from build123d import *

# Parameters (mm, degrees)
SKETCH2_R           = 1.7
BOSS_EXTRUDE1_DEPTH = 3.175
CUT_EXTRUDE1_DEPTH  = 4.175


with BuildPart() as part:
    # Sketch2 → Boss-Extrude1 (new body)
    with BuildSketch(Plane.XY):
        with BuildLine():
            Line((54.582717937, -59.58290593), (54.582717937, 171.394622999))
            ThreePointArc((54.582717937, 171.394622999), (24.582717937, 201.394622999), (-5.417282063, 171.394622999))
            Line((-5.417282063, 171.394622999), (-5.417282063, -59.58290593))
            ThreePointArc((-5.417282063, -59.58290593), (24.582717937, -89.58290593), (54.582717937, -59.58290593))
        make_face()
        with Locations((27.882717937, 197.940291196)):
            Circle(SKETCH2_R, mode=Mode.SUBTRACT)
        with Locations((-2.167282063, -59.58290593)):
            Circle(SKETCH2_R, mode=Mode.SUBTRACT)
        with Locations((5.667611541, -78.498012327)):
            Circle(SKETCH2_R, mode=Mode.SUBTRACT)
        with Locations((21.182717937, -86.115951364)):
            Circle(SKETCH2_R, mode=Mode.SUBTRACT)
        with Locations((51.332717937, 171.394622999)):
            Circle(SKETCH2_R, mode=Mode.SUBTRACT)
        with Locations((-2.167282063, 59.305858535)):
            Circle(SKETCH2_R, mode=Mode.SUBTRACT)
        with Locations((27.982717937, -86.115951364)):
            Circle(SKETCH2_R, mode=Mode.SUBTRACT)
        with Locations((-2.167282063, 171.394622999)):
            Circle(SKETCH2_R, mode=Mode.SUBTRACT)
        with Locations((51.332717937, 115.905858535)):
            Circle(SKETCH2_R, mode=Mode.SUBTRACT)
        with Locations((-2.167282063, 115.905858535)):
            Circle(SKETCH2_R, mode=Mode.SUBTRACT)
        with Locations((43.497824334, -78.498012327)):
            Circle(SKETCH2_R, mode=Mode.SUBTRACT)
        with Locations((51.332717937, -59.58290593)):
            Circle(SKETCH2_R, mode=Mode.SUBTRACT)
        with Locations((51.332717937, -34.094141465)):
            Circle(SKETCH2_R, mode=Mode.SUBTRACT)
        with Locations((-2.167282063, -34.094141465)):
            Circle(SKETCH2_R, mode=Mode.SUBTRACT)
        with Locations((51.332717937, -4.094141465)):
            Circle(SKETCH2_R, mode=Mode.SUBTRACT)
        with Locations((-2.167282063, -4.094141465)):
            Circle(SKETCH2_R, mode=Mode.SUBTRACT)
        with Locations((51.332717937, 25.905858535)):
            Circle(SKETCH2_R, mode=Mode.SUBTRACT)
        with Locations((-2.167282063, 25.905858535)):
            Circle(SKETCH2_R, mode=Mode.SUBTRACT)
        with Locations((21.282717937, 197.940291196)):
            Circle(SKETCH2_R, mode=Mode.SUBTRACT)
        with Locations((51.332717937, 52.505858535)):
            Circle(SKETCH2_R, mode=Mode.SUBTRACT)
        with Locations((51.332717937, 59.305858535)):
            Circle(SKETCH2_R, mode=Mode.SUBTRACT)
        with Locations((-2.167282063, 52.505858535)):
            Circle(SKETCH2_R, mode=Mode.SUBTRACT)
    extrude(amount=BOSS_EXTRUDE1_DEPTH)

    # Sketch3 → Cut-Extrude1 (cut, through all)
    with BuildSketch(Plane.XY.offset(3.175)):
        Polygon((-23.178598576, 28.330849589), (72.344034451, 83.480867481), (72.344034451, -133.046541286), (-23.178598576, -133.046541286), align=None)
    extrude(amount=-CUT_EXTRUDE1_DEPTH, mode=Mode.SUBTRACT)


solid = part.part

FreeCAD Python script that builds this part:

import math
import FreeCAD as App
import Part
import Sketcher
from FreeCAD import Vector
Q = App.Units.Quantity

doc = App.newDocument("Part")
body = doc.addObject("PartDesign::Body", "Body")

sketch1 = body.newObject("Sketcher::SketchObject", "Sketch")
sketch1.AttachmentSupport = (doc.getObject("XY_Plane"), [""])
sketch1.MapMode = "FlatFace"
sketch1.addGeometry([
    Part.LineSegment(Vector(54.6, -59.6, 0), Vector(54.6, 171.4, 0)),
    Part.ArcOfCircle(Part.Circle(Vector(24.6, 171.4, 0), Vector(0, 0, 1), 30), math.radians(0), math.radians(180)),
    Part.LineSegment(Vector(-5.4, 171.4, 0), Vector(-5.4, -59.6, 0)),
    Part.ArcOfCircle(Part.Circle(Vector(24.6, -59.6, 0), Vector(0, 0, 1), 30), math.radians(180), math.radians(360)),
    Part.Circle(Vector(-2.2, -59.6, 0), Vector(0, 0, 1), 1.7),
    Part.Circle(Vector(5.7, -78.5, 0), Vector(0, 0, 1), 1.7),
    Part.Circle(Vector(-2.2, -34.1, 0), Vector(0, 0, 1), 1.7),
    Part.Circle(Vector(21.2, -86.1, 0), Vector(0, 0, 1), 1.7),
    Part.Circle(Vector(-2.2, -4.1, 0), Vector(0, 0, 1), 1.7),
    Part.Circle(Vector(-2.2, 25.9, 0), Vector(0, 0, 1), 1.7),
    Part.Circle(Vector(-2.2, 52.5, 0), Vector(0, 0, 1), 1.7),
    Part.Circle(Vector(28, -86.1, 0), Vector(0, 0, 1), 1.7),
    Part.Circle(Vector(43.5, -78.5, 0), Vector(0, 0, 1), 1.7),
    Part.Circle(Vector(51.3, -59.6, 0), Vector(0, 0, 1), 1.7),
    Part.Circle(Vector(51.3, -34.1, 0), Vector(0, 0, 1), 1.7),
    Part.Circle(Vector(51.3, -4.1, 0), Vector(0, 0, 1), 1.7),
    Part.Circle(Vector(51.3, 25.9, 0), Vector(0, 0, 1), 1.7),
    Part.Circle(Vector(51.3, 52.5, 0), Vector(0, 0, 1), 1.7),
    Part.Circle(Vector(-2.2, 59.3, 0), Vector(0, 0, 1), 1.7),
    Part.Circle(Vector(-2.2, 115.9, 0), Vector(0, 0, 1), 1.7),
    Part.Circle(Vector(-2.2, 171.4, 0), Vector(0, 0, 1), 1.7),
    Part.Circle(Vector(21.3, 197.9, 0), Vector(0, 0, 1), 1.7),
    Part.Circle(Vector(51.3, 59.3, 0), Vector(0, 0, 1), 1.7),
    Part.Circle(Vector(51.3, 115.9, 0), Vector(0, 0, 1), 1.7),
    Part.Circle(Vector(27.9, 197.9, 0), Vector(0, 0, 1), 1.7),
    Part.Circle(Vector(51.3, 171.4, 0), Vector(0, 0, 1), 1.7),
], False)
sketch1.addConstraint([
    Sketcher.Constraint("Tangent", 0, 2, 1, 1),
    Sketcher.Constraint("Tangent", 1, 2, 2, 1),
    Sketcher.Constraint("Tangent", 2, 2, 3, 1),
    Sketcher.Constraint("Tangent", 3, 2, 0, 1),
    Sketcher.Constraint("Vertical", 0),
    Sketcher.Constraint("Vertical", 2),
    Sketcher.Constraint("Equal", 4, 5),
    Sketcher.Constraint("Equal", 5, 6),
    Sketcher.Constraint("Equal", 6, 7),
    Sketcher.Constraint("Equal", 7, 8),
    Sketcher.Constraint("Equal", 8, 9),
    Sketcher.Constraint("Equal", 9, 10),
    Sketcher.Constraint("Equal", 10, 11),
    Sketcher.Constraint("Equal", 11, 12),
    Sketcher.Constraint("Equal", 12, 13),
    Sketcher.Constraint("Equal", 13, 14),
    Sketcher.Constraint("Equal", 14, 15),
    Sketcher.Constraint("Equal", 15, 16),
    Sketcher.Constraint("Equal", 16, 17),
    Sketcher.Constraint("Equal", 17, 18),
    Sketcher.Constraint("Equal", 18, 19),
    Sketcher.Constraint("Equal", 19, 20),
    Sketcher.Constraint("Equal", 20, 21),
    Sketcher.Constraint("Equal", 21, 22),
    Sketcher.Constraint("Equal", 22, 23),
    Sketcher.Constraint("Equal", 23, 24),
    Sketcher.Constraint("Equal", 24, 25),
    Sketcher.Constraint("Horizontal", 3, 3, 4, 3),
    Sketcher.Constraint("Horizontal", 7, 3, 11, 3),
    Sketcher.Constraint("Horizontal", 5, 3, 12, 3),
    Sketcher.Constraint("Horizontal", 4, 3, 13, 3),
    Sketcher.Constraint("Horizontal", 6, 3, 14, 3),
    Sketcher.Constraint("Horizontal", 8, 3, 15, 3),
    Sketcher.Constraint("Horizontal", 9, 3, 16, 3),
    Sketcher.Constraint("Horizontal", 10, 3, 17, 3),
    Sketcher.Constraint("Horizontal", 1, 3, 20, 3),
    Sketcher.Constraint("Horizontal", 18, 3, 22, 3),
    Sketcher.Constraint("Horizontal", 19, 3, 23, 3),
    Sketcher.Constraint("Horizontal", 21, 3, 24, 3),
    Sketcher.Constraint("Horizontal", 20, 3, 25, 3),
    Sketcher.Constraint("Vertical", 4, 3, 6, 3),
    Sketcher.Constraint("Vertical", 6, 3, 8, 3),
    Sketcher.Constraint("Vertical", 8, 3, 9, 3),
    Sketcher.Constraint("Vertical", 9, 3, 10, 3),
    Sketcher.Constraint("Vertical", 13, 3, 14, 3),
    Sketcher.Constraint("Vertical", 14, 3, 15, 3),
    Sketcher.Constraint("Vertical", 15, 3, 16, 3),
    Sketcher.Constraint("Vertical", 16, 3, 17, 3),
    Sketcher.Constraint("Vertical", 10, 3, 18, 3),
    Sketcher.Constraint("Vertical", 18, 3, 19, 3),
    Sketcher.Constraint("Vertical", 19, 3, 20, 3),
    Sketcher.Constraint("Vertical", 17, 3, 22, 3),
    Sketcher.Constraint("Vertical", 22, 3, 23, 3),
    Sketcher.Constraint("Vertical", 23, 3, 25, 3),
    Sketcher.Constraint("Radius", 1, Q("30 mm")),
    Sketcher.Constraint("Diameter", 4, Q("3.4 mm")),
    Sketcher.Constraint("DistanceY", 6, 3, 8, 3, Q("30 mm")),
    Sketcher.Constraint("DistanceY", 8, 3, 9, 3, Q("30 mm")),
    Sketcher.Constraint("DistanceY", 9, 3, 19, 3, Q("90 mm")),
    Sketcher.Constraint("DistanceX", 7, 3, 3, 3, Q("3.4 mm")),
    Sketcher.Constraint("DistanceY", 9, 3, 10, 3, Q("26.6 mm")),
    Sketcher.Constraint("DistanceX", 7, 3, 11, 3, Q("6.8 mm")),
    Sketcher.Constraint("DistanceX", 6, 3, 14, 3, Q("53.5 mm")),
    Sketcher.Constraint("DistanceY", 10, 3, 18, 3, Q("6.8 mm")),
    Sketcher.Constraint("DistanceX", 21, 3, 1, 3, Q("3.3 mm")),
    Sketcher.Constraint("DistanceX", 21, 3, 24, 3, Q("6.6 mm")),
    Sketcher.Constraint("DistanceX", 4, 3, 3, 3, Q("26.75 mm")),
    Sketcher.Constraint("DistanceY", 0, 1, 0, 2, Q("230.977529 mm")),
    Sketcher.Constraint("DistanceX", -1, 1, 5, 3, Q("5.667612 mm")),
    Sketcher.Constraint("DistanceY", 6, 3, -1, 1, Q("34.094141 mm")),
    Sketcher.Constraint("DistanceY", 7, 3, -1, 1, Q("86.115951 mm")),
    Sketcher.Constraint("DistanceY", -1, 1, 21, 3, Q("197.940291 mm")),
    Sketcher.Constraint("DistanceY", 5, 3, 6, 3, Q("44.403871 mm")),
    Sketcher.Constraint("DistanceY", 1, 3, 21, 3, Q("26.545668 mm")),
    Sketcher.Constraint("DistanceX", -1, 1, 1, 3, Q("24.582718 mm")),
    Sketcher.Constraint("DistanceX", -1, 1, 12, 3, Q("43.497824 mm")),
])
pad1 = body.newObject("PartDesign::Pad", "Pad")
pad1.Profile = sketch1
pad1.Length = 3.175

sketch2 = body.newObject("Sketcher::SketchObject", "Sketch001")
sketch2.AttachmentSupport = (doc.getObject("XY_Plane"), [""])
sketch2.MapMode = "FlatFace"
sketch2.AttachmentOffset = App.Placement(Vector(0, 0, 3.175), App.Rotation())
sketch2.addGeometry([
    Part.LineSegment(Vector(72, 83, 0), Vector(-23, 28, 0)),
    Part.LineSegment(Vector(-23, 28, 0), Vector(-23, -133, 0)),
    Part.LineSegment(Vector(-23, -133, 0), Vector(72, -133, 0)),
    Part.LineSegment(Vector(72, -133, 0), Vector(72, 83, 0)),
], False)
sketch2.addConstraint([
    Sketcher.Constraint("Coincident", 0, 2, 1, 1),
    Sketcher.Constraint("Coincident", 1, 2, 2, 1),
    Sketcher.Constraint("Coincident", 2, 2, 3, 1),
    Sketcher.Constraint("Coincident", 3, 2, 0, 1),
    Sketcher.Constraint("Vertical", 1),
    Sketcher.Constraint("Horizontal", 2),
    Sketcher.Constraint("Vertical", 3),
    Sketcher.Constraint("Angle", 0, Q("-150 deg")),
    Sketcher.Constraint("DistanceY", 1, 2, 1, 1, Q("161.377391 mm")),
    Sketcher.Constraint("DistanceY", 3, 1, 3, 2, Q("216.527409 mm")),
    Sketcher.Constraint("DistanceX", 0, 2, -1, 1, Q("23.178599 mm")),
    Sketcher.Constraint("DistanceY", -1, 1, 0, 2, Q("28.33085 mm")),
])
pocket1 = body.newObject("PartDesign::Pocket", "Pocket")
pocket1.Profile = sketch2
pocket1.Type = "ThroughAll"

doc.recompute()
